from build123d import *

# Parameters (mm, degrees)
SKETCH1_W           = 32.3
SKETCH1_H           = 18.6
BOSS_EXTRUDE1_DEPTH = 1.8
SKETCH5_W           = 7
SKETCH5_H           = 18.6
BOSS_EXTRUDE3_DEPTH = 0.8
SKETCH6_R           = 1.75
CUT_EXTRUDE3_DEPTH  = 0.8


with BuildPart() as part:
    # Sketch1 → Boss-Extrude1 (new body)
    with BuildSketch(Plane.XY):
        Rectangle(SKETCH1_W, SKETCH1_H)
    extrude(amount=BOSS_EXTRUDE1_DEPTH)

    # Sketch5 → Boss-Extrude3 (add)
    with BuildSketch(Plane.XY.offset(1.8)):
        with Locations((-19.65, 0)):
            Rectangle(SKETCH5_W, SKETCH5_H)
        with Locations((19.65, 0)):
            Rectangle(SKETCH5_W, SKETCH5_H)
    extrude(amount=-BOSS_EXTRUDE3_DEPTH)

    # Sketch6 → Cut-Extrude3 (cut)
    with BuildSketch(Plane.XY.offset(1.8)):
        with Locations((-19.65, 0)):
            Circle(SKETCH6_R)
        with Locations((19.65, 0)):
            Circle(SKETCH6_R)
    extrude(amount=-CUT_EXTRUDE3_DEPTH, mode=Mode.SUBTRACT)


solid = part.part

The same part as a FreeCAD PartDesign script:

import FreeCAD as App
import Part
import Sketcher
from FreeCAD import Vector

doc = App.newDocument("Part")
body = doc.addObject("PartDesign::Body", "Body")

sketch1 = doc.addObject("Sketcher::SketchObject", "Sketch")
body.addObject(sketch1)
sketch1.AttachmentSupport = (doc.XY_Plane, [""])
sketch1.MapMode = "FlatFace"
sketch1.addGeometry(Part.LineSegment(Vector(-16.15, 9.3, 0), Vector(-16.15, -9.3, 0)), False)
sketch1.addGeometry(Part.LineSegment(Vector(-16.15, -9.3, 0), Vector(16.15, -9.3, 0)), False)
sketch1.addGeometry(Part.LineSegment(Vector(16.15, -9.3, 0), Vector(16.15, 9.3, 0)), False)
sketch1.addGeometry(Part.LineSegment(Vector(16.15, 9.3, 0), Vector(-16.15, 9.3, 0)), False)
sketch1.addConstraint(Sketcher.Constraint("Coincident", 0, 2, 1, 1))
sketch1.addConstraint(Sketcher.Constraint("Coincident", 1, 2, 2, 1))
sketch1.addConstraint(Sketcher.Constraint("Coincident", 2, 2, 3, 1))
sketch1.addConstraint(Sketcher.Constraint("Coincident", 3, 2, 0, 1))
sketch1.addConstraint(Sketcher.Constraint("Vertical", 0))
sketch1.addConstraint(Sketcher.Constraint("Horizontal", 1))
sketch1.addConstraint(Sketcher.Constraint("Vertical", 2))
sketch1.addConstraint(Sketcher.Constraint("Horizontal", 3))
sketch1.addConstraint(Sketcher.Constraint("Symmetric", 0, 2, 2, 2, -1, 1))
sketch1.addConstraint(Sketcher.Constraint("DistanceX", 1, 1, 1, 2, 32.3))
sketch1.addConstraint(Sketcher.Constraint("DistanceY", 0, 2, 0, 1, 18.6))
pad1 = doc.addObject("PartDesign::Pad", "Pad")
body.addObject(pad1)
pad1.Profile = sketch1
pad1.Length = 1.8

sketch2 = doc.addObject("Sketcher::SketchObject", "Sketch001")
body.addObject(sketch2)
sketch2.AttachmentSupport = (doc.XY_Plane, [""])
sketch2.MapMode = "FlatFace"
sketch2.AttachmentOffset = App.Placement(Vector(0, 0, 1.8), App.Rotation())
sketch2.addGeometry(Part.LineSegment(Vector(-23.15, 9.3, 0), Vector(-23.15, -9.3, 0)), False)
sketch2.addGeometry(Part.LineSegment(Vector(-23.15, -9.3, 0), Vector(-16.15, -9.3, 0)), False)
sketch2.addGeometry(Part.LineSegment(Vector(-16.15, -9.3, 0), Vector(-16.15, 9.3, 0)), False)
sketch2.addGeometry(Part.LineSegment(Vector(-16.15, 9.3, 0), Vector(-23.15, 9.3, 0)), False)
sketch2.addGeometry(Part.LineSegment(Vector(16.15, 9.3, 0), Vector(16.15, -9.3, 0)), False)
sketch2.addGeometry(Part.LineSegment(Vector(16.15, -9.3, 0), Vector(23.15, -9.3, 0)), False)
sketch2.addGeometry(Part.LineSegment(Vector(23.15, -9.3, 0), Vector(23.15, 9.3, 0)), False)
sketch2.addGeometry(Part.LineSegment(Vector(23.15, 9.3, 0), Vector(16.15, 9.3, 0)), False)
sketch2.addConstraint(Sketcher.Constraint("Coincident", 0, 2, 1, 1))
sketch2.addConstraint(Sketcher.Constraint("Coincident", 1, 2, 2, 1))
sketch2.addConstraint(Sketcher.Constraint("Coincident", 2, 2, 3, 1))
sketch2.addConstraint(Sketcher.Constraint("Coincident", 3, 2, 0, 1))
sketch2.addConstraint(Sketcher.Constraint("Coincident", 4, 2, 5, 1))
sketch2.addConstraint(Sketcher.Constraint("Coincident", 5, 2, 6, 1))
sketch2.addConstraint(Sketcher.Constraint("Coincident", 6, 2, 7, 1))
sketch2.addConstraint(Sketcher.Constraint("Coincident", 7, 2, 4, 1))
sketch2.addConstraint(Sketcher.Constraint("Vertical", 0))
sketch2.addConstraint(Sketcher.Constraint("Horizontal", 1))
sketch2.addConstraint(Sketcher.Constraint("Vertical", 2))
sketch2.addConstraint(Sketcher.Constraint("Horizontal", 3))
sketch2.addConstraint(Sketcher.Constraint("Vertical", 4))
sketch2.addConstraint(Sketcher.Constraint("Horizontal", 5))
sketch2.addConstraint(Sketcher.Constraint("Vertical", 6))
sketch2.addConstraint(Sketcher.Constraint("Horizontal", 7))
sketch2.addConstraint(Sketcher.Constraint("Symmetric", 2, 2, 4, 2, -1, 1))
sketch2.addConstraint(Sketcher.Constraint("Symmetric", 0, 2, 6, 2, -1, 1))
sketch2.addConstraint(Sketcher.Constraint("Horizontal", 1, 2, 4, 2))
sketch2.addConstraint(Sketcher.Constraint("DistanceX", 1, 1, 1, 2, 7.0))
sketch2.addConstraint(Sketcher.Constraint("DistanceY", 0, 2, 0, 1, 18.6))
sketch2.addConstraint(Sketcher.Constraint("DistanceX", 1, 2, 4, 2, 32.3))
pad2 = doc.addObject("PartDesign::Pad", "Pad001")
body.addObject(pad2)
pad2.Profile = sketch2
pad2.Length = 0.8
pad2.Reversed = True

sketch3 = doc.addObject("Sketcher::SketchObject", "Sketch002")
body.addObject(sketch3)
sketch3.AttachmentSupport = (doc.XY_Plane, [""])
sketch3.MapMode = "FlatFace"
sketch3.AttachmentOffset = App.Placement(Vector(0, 0, 1.8), App.Rotation())
sketch3.addGeometry(Part.Circle(Vector(-19.65, 0, 0), Vector(0, 0, 1), 1.75), False)
sketch3.addGeometry(Part.Circle(Vector(19.65, 0, 0), Vector(0, 0, 1), 1.75), False)
sketch3.addConstraint(Sketcher.Constraint("Equal", 0, 1))
sketch3.addConstraint(Sketcher.Constraint("Symmetric", 0, 3, 1, 3, -1, 1))
sketch3.addConstraint(Sketcher.Constraint("PointOnObject", 0, 3, -1))
sketch3.addConstraint(Sketcher.Constraint("Diameter", 0, 3.5))
sketch3.addConstraint(Sketcher.Constraint("DistanceX", 0, 3, 1, 3, 39.3))
pocket1 = doc.addObject("PartDesign::Pocket", "Pocket")
body.addObject(pocket1)
pocket1.Profile = sketch3
pocket1.Length = 0.8

doc.recompute()
